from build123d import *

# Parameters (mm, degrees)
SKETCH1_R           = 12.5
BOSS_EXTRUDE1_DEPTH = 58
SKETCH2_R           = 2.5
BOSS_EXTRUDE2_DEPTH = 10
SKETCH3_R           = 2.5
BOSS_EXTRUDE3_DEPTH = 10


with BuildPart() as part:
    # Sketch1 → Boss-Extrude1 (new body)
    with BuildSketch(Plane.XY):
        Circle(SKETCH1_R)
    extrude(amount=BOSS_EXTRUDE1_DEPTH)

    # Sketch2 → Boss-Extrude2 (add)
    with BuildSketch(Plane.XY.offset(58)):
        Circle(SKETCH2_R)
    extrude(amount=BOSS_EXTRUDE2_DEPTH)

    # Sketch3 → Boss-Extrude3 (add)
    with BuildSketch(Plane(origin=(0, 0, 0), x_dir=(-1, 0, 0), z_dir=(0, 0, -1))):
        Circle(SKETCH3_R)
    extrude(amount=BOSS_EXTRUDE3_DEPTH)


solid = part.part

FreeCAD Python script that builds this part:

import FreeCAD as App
import Part
import Sketcher
from FreeCAD import Vector

doc = App.newDocument("Part")
body = doc.addObject("PartDesign::Body", "Body")

# Sketch on XY plane
sketch1 = body.newObject("Sketcher::SketchObject", "Sketch")
sketch1.AttachmentSupport = (doc.getObject("XY_Plane"), [""])
sketch1.MapMode = "FlatFace"
sketch1.addGeometry(Part.Circle(Vector(0, 0, 0), Vector(0, 0, 1), 12), False)
sketch1.addConstraint([
    Sketcher.Constraint("Coincident", 0, 3, -1, 1),
    Sketcher.Constraint("Diameter", 0, 25.0),
])
pad1 = body.newObject("PartDesign::Pad", "Pad")
pad1.Profile = sketch1
pad1.Length = 58

# Sketch on XY plane
sketch2 = body.newObject("Sketcher::SketchObject", "Sketch001")
sketch2.AttachmentSupport = (doc.getObject("XY_Plane"), [""])
sketch2.MapMode = "FlatFace"
sketch2.AttachmentOffset = App.Placement(Vector(0, 0, 58), App.Rotation())
sketch2.addGeometry(Part.Circle(Vector(0, 0, 0), Vector(0, 0, 1), 2.5), False)
sketch2.addConstraint([
    Sketcher.Constraint("Coincident", 0, 3, -1, 1),
    Sketcher.Constraint("Diameter", 0, 5.0),
])
pad2 = body.newObject("PartDesign::Pad", "Pad001")
pad2.Profile = sketch2
pad2.Length = 10

# Sketch on XY plane
sketch3 = body.newObject("Sketcher::SketchObject", "Sketch002")
sketch3.AttachmentSupport = (doc.getObject("XY_Plane"), [""])
sketch3.MapMode = "FlatFace"
sketch3.addGeometry(Part.Circle(Vector(0, 0, 0), Vector(0, 0, 1), 2.5), False)
sketch3.addConstraint([
    Sketcher.Constraint("Coincident", 0, 3, -1, 1),
    Sketcher.Constraint("Diameter", 0, 5.0),
])
pad3 = body.newObject("PartDesign::Pad", "Pad002")
pad3.Profile = sketch3
pad3.Length = 10
pad3.Reversed = True

doc.recompute()
